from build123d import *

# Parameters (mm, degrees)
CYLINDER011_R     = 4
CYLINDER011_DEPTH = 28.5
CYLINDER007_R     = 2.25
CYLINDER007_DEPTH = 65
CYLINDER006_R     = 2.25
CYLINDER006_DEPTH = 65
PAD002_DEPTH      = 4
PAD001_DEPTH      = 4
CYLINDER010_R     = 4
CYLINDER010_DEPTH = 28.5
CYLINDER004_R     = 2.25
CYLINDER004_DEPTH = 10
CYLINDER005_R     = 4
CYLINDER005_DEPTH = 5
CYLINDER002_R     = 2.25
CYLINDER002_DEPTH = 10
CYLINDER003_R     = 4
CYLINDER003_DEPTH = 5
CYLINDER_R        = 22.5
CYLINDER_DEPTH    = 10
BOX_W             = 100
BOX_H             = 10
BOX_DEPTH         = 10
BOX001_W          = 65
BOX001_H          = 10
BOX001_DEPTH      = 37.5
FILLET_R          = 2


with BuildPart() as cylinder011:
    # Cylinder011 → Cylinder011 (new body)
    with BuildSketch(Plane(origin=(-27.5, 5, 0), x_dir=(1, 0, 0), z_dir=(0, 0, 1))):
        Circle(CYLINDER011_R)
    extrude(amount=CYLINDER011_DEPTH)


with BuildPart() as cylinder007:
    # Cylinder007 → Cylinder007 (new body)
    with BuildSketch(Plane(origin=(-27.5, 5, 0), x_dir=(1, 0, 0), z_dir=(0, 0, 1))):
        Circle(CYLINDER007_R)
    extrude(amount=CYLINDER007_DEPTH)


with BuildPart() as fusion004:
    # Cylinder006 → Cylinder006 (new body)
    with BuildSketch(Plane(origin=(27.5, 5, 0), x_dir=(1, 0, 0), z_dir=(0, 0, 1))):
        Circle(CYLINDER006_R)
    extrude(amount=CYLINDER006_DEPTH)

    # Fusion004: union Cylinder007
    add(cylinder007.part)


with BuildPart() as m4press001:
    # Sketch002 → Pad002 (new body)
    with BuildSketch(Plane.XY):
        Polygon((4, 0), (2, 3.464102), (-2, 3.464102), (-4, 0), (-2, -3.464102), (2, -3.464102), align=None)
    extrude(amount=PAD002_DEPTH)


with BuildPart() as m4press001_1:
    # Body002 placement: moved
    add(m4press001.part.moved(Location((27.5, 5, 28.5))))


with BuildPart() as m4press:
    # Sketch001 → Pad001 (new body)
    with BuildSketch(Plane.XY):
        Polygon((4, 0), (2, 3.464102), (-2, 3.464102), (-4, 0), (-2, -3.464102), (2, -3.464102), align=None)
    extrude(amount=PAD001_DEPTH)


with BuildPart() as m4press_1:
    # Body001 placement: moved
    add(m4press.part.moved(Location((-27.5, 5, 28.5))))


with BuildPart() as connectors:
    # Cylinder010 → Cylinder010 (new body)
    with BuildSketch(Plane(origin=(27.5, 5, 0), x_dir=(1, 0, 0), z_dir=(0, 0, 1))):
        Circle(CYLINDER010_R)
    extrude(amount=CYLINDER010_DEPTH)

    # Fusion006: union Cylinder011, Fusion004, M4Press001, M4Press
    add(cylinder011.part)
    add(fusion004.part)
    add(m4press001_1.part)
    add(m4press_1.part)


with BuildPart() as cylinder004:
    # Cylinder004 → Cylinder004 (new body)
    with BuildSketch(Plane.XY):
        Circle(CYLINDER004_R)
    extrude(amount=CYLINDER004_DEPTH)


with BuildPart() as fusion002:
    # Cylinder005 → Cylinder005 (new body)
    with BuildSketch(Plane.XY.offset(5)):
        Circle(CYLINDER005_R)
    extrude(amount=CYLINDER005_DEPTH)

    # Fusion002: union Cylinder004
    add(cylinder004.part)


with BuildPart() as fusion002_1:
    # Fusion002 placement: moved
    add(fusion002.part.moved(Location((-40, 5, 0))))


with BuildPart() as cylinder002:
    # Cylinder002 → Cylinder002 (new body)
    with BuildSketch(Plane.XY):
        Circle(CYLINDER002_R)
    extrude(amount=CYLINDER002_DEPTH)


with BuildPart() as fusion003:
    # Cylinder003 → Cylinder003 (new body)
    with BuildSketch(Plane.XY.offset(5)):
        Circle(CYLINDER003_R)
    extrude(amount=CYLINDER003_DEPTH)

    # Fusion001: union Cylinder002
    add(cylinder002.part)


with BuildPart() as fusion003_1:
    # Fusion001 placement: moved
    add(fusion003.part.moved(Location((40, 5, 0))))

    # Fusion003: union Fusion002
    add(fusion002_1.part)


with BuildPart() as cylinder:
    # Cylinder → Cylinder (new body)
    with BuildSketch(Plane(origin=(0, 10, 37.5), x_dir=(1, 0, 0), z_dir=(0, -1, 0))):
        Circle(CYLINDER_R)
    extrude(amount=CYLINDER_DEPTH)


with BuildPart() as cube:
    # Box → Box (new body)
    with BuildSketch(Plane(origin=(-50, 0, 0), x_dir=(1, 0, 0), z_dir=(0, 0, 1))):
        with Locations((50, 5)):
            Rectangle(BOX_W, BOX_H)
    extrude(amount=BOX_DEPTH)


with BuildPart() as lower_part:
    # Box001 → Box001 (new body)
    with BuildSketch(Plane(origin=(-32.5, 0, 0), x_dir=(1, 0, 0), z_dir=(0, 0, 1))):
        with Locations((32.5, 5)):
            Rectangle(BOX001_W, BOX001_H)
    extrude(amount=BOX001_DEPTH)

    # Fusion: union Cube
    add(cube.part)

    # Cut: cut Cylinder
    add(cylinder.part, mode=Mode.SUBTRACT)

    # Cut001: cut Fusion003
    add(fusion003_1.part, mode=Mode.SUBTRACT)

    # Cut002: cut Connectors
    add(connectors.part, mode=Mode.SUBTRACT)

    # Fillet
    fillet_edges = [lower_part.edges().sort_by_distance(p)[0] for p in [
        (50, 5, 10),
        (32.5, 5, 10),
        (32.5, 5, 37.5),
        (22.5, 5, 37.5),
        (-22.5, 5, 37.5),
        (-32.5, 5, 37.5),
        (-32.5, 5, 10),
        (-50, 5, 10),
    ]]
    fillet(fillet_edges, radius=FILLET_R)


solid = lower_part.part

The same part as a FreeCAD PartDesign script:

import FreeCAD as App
import Part
import Sketcher
from FreeCAD import Vector
Q = App.Units.Quantity


def edges_at(feature, points):
    """Names of the edges that pass closest to the given points."""
    edges = feature.Shape.Edges
    near = lambda p: min(range(len(edges)), key=lambda i: edges[i].distToShape(Part.Vertex(*p))[0])
    return sorted({f"Edge{near(p) + 1}" for p in points})

doc = App.newDocument("Part")
params = doc.addObject("Spreadsheet::Sheet", "Params")
for row, (alias, value) in enumerate([
    ("sketch1_diameter", "8 mm"),
    ("pad1_length", "28.5 mm"),
    ("sketch2_diameter", "4.5 mm"),
    ("pad2_length", "65 mm"),
    ("sketch3_diameter", "4.5 mm"),
    ("pad3_length", "65 mm"),
    ("sketch4_width", "4 mm"),
    ("sketch4_length", "4 mm"),
    ("pad4_length", "4 mm"),
    ("sketch5_width", "4 mm"),
    ("sketch5_length", "4 mm"),
    ("pad5_length", "4 mm"),
    ("sketch6_diameter", "8 mm"),
    ("pad6_length", "28.5 mm"),
    ("sketch7_diameter", "4.5 mm"),
    ("pad7_length", "10 mm"),
    ("sketch8_diameter", "8 mm"),
    ("pad8_length", "5 mm"),
    ("sketch9_diameter", "4.5 mm"),
    ("pad9_length", "10 mm"),
    ("sketch10_diameter", "8 mm"),
    ("pad10_length", "5 mm"),
    ("sketch11_diameter", "45 mm"),
    ("pad11_length", "10 mm"),
    ("sketch12_width", "100 mm"),
    ("sketch12_height", "10 mm"),
    ("pad12_length", "10 mm"),
    ("sketch13_width", "65 mm"),
    ("sketch13_height", "10 mm"),
    ("pad13_length", "37.5 mm"),
    ("fillet_radius", "2 mm"),
], start=1):
    params.set(f"A{row}", alias)
    params.set(f"B{row}", "=" + value)
    params.setAlias(f"B{row}", alias)

body = doc.addObject("PartDesign::Body", "Body")

sketch1 = body.newObject("Sketcher::SketchObject", "Sketch")
sketch1.AttachmentSupport = (doc.getObject("XY_Plane"), [""])
sketch1.MapMode = "FlatFace"
sketch1.addGeometry(Part.Circle(Vector(-27.5, 5, 0), Vector(0, 0, 1), 4), False)
sketch1.addConstraint([
    Sketcher.Constraint("Diameter", 0, 8.0),
    Sketcher.Constraint("DistanceY", -1, 1, 0, 3, 5.0),
    Sketcher.Constraint("DistanceX", 0, 3, -1, 1, 27.5),
])
sketch1.setExpression("Constraints[0]", "Params.sketch1_diameter")
pad1 = body.newObject("PartDesign::Pad", "Pad")
pad1.Profile = sketch1
pad1.setExpression("Length", "Params.pad1_length")
body2 = doc.addObject("PartDesign::Body", "Body001")

sketch2 = body2.newObject("Sketcher::SketchObject", "Sketch001")
sketch2.AttachmentSupport = (doc.getObject("XY_Plane001"), [""])
sketch2.MapMode = "FlatFace"
sketch2.addGeometry(Part.Circle(Vector(-27.5, 5, 0), Vector(0, 0, 1), 2.2), False)
sketch2.addConstraint([
    Sketcher.Constraint("Diameter", 0, 4.5),
    Sketcher.Constraint("DistanceY", -1, 1, 0, 3, 5.0),
    Sketcher.Constraint("DistanceX", 0, 3, -1, 1, 27.5),
])
sketch2.setExpression("Constraints[0]", "Params.sketch2_diameter")
pad2 = body2.newObject("PartDesign::Pad", "Pad001")
pad2.Profile = sketch2
pad2.setExpression("Length", "Params.pad2_length")
body3 = doc.addObject("PartDesign::Body", "Body002")
body3.AllowCompound = True

sketch3 = body3.newObject("Sketcher::SketchObject", "Sketch002")
sketch3.AttachmentSupport = (doc.getObject("XY_Plane002"), [""])
sketch3.MapMode = "FlatFace"
sketch3.addGeometry(Part.Circle(Vector(27.5, 5, 0), Vector(0, 0, 1), 2.2), False)
sketch3.addConstraint([
    Sketcher.Constraint("Diameter", 0, 4.5),
    Sketcher.Constraint("DistanceY", -1, 1, 0, 3, 5.0),
    Sketcher.Constraint("DistanceX", -1, 1, 0, 3, 27.5),
])
sketch3.setExpression("Constraints[0]", "Params.sketch3_diameter")
pad3 = body3.newObject("PartDesign::Pad", "Pad002")
pad3.Profile = sketch3
pad3.setExpression("Length", "Params.pad3_length")
doc.recompute()

boolean = body3.newObject("PartDesign::Boolean", "Boolean")
boolean.Type = "Fuse"
boolean.addObjects([body2])
body4 = doc.addObject("PartDesign::Body", "Body003")

sketch4 = body4.newObject("Sketcher::SketchObject", "Sketch003")
sketch4.AttachmentSupport = (doc.getObject("XY_Plane003"), [""])
sketch4.MapMode = "FlatFace"
sketch4.addGeometry([
    Part.LineSegment(Vector(4, 0, 0), Vector(2, 3.5, 0)),
    Part.LineSegment(Vector(2, 3.5, 0), Vector(-2, 3.5, 0)),
    Part.LineSegment(Vector(-2, 3.5, 0), Vector(-4, 0, 0)),
    Part.LineSegment(Vector(-4, 0, 0), Vector(-2, -3.5, 0)),
    Part.LineSegment(Vector(-2, -3.5, 0), Vector(2, -3.5, 0)),
    Part.LineSegment(Vector(2, -3.5, 0), Vector(4, 0, 0)),
], False)
sketch4.addConstraint([
    Sketcher.Constraint("Coincident", 0, 2, 1, 1),
    Sketcher.Constraint("Coincident", 1, 2, 2, 1),
    Sketcher.Constraint("Coincident", 2, 2, 3, 1),
    Sketcher.Constraint("Coincident", 3, 2, 4, 1),
    Sketcher.Constraint("Coincident", 4, 2, 5, 1),
    Sketcher.Constraint("Coincident", 5, 2, 0, 1),
    Sketcher.Constraint("Horizontal", 1),
    Sketcher.Constraint("Horizontal", 4),
    Sketcher.Constraint("Symmetric", 0, 2, 3, 2, -1, 1),
    Sketcher.Constraint("Symmetric", 2, 2, 5, 2, -1, 1),
    Sketcher.Constraint("PointOnObject", 2, 2, -1),
    Sketcher.Constraint("Parallel", 2, 5),
    Sketcher.Constraint("Vertical", 1, 2, 3, 2),
    Sketcher.Constraint("DistanceX", 1, 2, 1, 1, 4.0),
    Sketcher.Constraint("Angle", 0, Q("119.999997 deg")),
    Sketcher.Constraint("Distance", 0, 4.0),
])
sketch4.setExpression("Constraints[13]", "Params.sketch4_width")
sketch4.setExpression("Constraints[15]", "Params.sketch4_length")
pad4 = body4.newObject("PartDesign::Pad", "Pad003")
pad4.Profile = sketch4
pad4.setExpression("Length", "Params.pad4_length")
body5 = doc.addObject("PartDesign::Body", "Body004")
doc.recompute()

body4.Placement = App.Placement(Vector(27.5, 5, 28.5), App.Rotation(Vector(0, 0, 1), 0))
boolean2 = body5.newObject("PartDesign::Boolean", "Boolean001")
boolean2.Type = "Fuse"
boolean2.addObjects([body4])
body6 = doc.addObject("PartDesign::Body", "Body005")

sketch5 = body6.newObject("Sketcher::SketchObject", "Sketch004")
sketch5.AttachmentSupport = (doc.getObject("XY_Plane005"), [""])
sketch5.MapMode = "FlatFace"
sketch5.addGeometry([
    Part.LineSegment(Vector(4, 0, 0), Vector(2, 3.5, 0)),
    Part.LineSegment(Vector(2, 3.5, 0), Vector(-2, 3.5, 0)),
    Part.LineSegment(Vector(-2, 3.5, 0), Vector(-4, 0, 0)),
    Part.LineSegment(Vector(-4, 0, 0), Vector(-2, -3.5, 0)),
    Part.LineSegment(Vector(-2, -3.5, 0), Vector(2, -3.5, 0)),
    Part.LineSegment(Vector(2, -3.5, 0), Vector(4, 0, 0)),
], False)
sketch5.addConstraint([
    Sketcher.Constraint("Coincident", 0, 2, 1, 1),
    Sketcher.Constraint("Coincident", 1, 2, 2, 1),
    Sketcher.Constraint("Coincident", 2, 2, 3, 1),
    Sketcher.Constraint("Coincident", 3, 2, 4, 1),
    Sketcher.Constraint("Coincident", 4, 2, 5, 1),
    Sketcher.Constraint("Coincident", 5, 2, 0, 1),
    Sketcher.Constraint("Horizontal", 1),
    Sketcher.Constraint("Horizontal", 4),
    Sketcher.Constraint("Symmetric", 0, 2, 3, 2, -1, 1),
    Sketcher.Constraint("Symmetric", 2, 2, 5, 2, -1, 1),
    Sketcher.Constraint("PointOnObject", 2, 2, -1),
    Sketcher.Constraint("Parallel", 2, 5),
    Sketcher.Constraint("Vertical", 1, 2, 3, 2),
    Sketcher.Constraint("DistanceX", 1, 2, 1, 1, 4.0),
    Sketcher.Constraint("Angle", 0, Q("119.999997 deg")),
    Sketcher.Constraint("Distance", 0, 4.0),
])
sketch5.setExpression("Constraints[13]", "Params.sketch5_width")
sketch5.setExpression("Constraints[15]", "Params.sketch5_length")
pad5 = body6.newObject("PartDesign::Pad", "Pad004")
pad5.Profile = sketch5
pad5.setExpression("Length", "Params.pad5_length")
body7 = doc.addObject("PartDesign::Body", "Body006")
doc.recompute()

body6.Placement = App.Placement(Vector(-27.5, 5, 28.5), App.Rotation(Vector(0, 0, 1), 0))
boolean3 = body7.newObject("PartDesign::Boolean", "Boolean002")
boolean3.Type = "Fuse"
boolean3.addObjects([body6])
body8 = doc.addObject("PartDesign::Body", "Body007")
body8.AllowCompound = True

sketch6 = body8.newObject("Sketcher::SketchObject", "Sketch005")
sketch6.AttachmentSupport = (doc.getObject("XY_Plane007"), [""])
sketch6.MapMode = "FlatFace"
sketch6.addGeometry(Part.Circle(Vector(27.5, 5, 0), Vector(0, 0, 1), 4), False)
sketch6.addConstraint([
    Sketcher.Constraint("Diameter", 0, 8.0),
    Sketcher.Constraint("DistanceY", -1, 1, 0, 3, 5.0),
    Sketcher.Constraint("DistanceX", -1, 1, 0, 3, 27.5),
])
sketch6.setExpression("Constraints[0]", "Params.sketch6_diameter")
pad6 = body8.newObject("PartDesign::Pad", "Pad005")
pad6.Profile = sketch6
pad6.setExpression("Length", "Params.pad6_length")
doc.recompute()

boolean4 = body8.newObject("PartDesign::Boolean", "Boolean003")
boolean4.Type = "Fuse"
boolean4.addObjects([body])
doc.recompute()

boolean5 = body8.newObject("PartDesign::Boolean", "Boolean004")
boolean5.Type = "Fuse"
boolean5.addObjects([body3])
doc.recompute()

boolean6 = body8.newObject("PartDesign::Boolean", "Boolean005")
boolean6.Type = "Fuse"
boolean6.addObjects([body5])
doc.recompute()

boolean7 = body8.newObject("PartDesign::Boolean", "Boolean006")
boolean7.Type = "Fuse"
boolean7.addObjects([body7])
body9 = doc.addObject("PartDesign::Body", "Body008")

sketch7 = body9.newObject("Sketcher::SketchObject", "Sketch006")
sketch7.AttachmentSupport = (doc.getObject("XY_Plane008"), [""])
sketch7.MapMode = "FlatFace"
sketch7.addGeometry(Part.Circle(Vector(0, 0, 0), Vector(0, 0, 1), 2.2), False)
sketch7.addConstraint([
    Sketcher.Constraint("Coincident", 0, 3, -1, 1),
    Sketcher.Constraint("Diameter", 0, 4.5),
])
sketch7.setExpression("Constraints[1]", "Params.sketch7_diameter")
pad7 = body9.newObject("PartDesign::Pad", "Pad006")
pad7.Profile = sketch7
pad7.setExpression("Length", "Params.pad7_length")
body10 = doc.addObject("PartDesign::Body", "Body009")

sketch8 = body10.newObject("Sketcher::SketchObject", "Sketch007")
sketch8.AttachmentSupport = (doc.getObject("XY_Plane009"), [""])
sketch8.MapMode = "FlatFace"
sketch8.AttachmentOffset = App.Placement(Vector(0, 0, 5), App.Rotation())
sketch8.addGeometry(Part.Circle(Vector(0, 0, 0), Vector(0, 0, 1), 4), False)
sketch8.addConstraint([
    Sketcher.Constraint("Coincident", 0, 3, -1, 1),
    Sketcher.Constraint("Diameter", 0, 8.0),
])
sketch8.setExpression("Constraints[1]", "Params.sketch8_diameter")
pad8 = body10.newObject("PartDesign::Pad", "Pad007")
pad8.Profile = sketch8
pad8.setExpression("Length", "Params.pad8_length")
doc.recompute()

boolean8 = body10.newObject("PartDesign::Boolean", "Boolean007")
boolean8.Type = "Fuse"
boolean8.addObjects([body9])
body11 = doc.addObject("PartDesign::Body", "Body010")
doc.recompute()

body10.Placement = App.Placement(Vector(-40, 5, 0), App.Rotation(Vector(0, 0, 1), 0))
boolean9 = body11.newObject("PartDesign::Boolean", "Boolean008")
boolean9.Type = "Fuse"
boolean9.addObjects([body10])
body12 = doc.addObject("PartDesign::Body", "Body011")

sketch9 = body12.newObject("Sketcher::SketchObject", "Sketch008")
sketch9.AttachmentSupport = (doc.getObject("XY_Plane011"), [""])
sketch9.MapMode = "FlatFace"
sketch9.addGeometry(Part.Circle(Vector(0, 0, 0), Vector(0, 0, 1), 2.2), False)
sketch9.addConstraint([
    Sketcher.Constraint("Coincident", 0, 3, -1, 1),
    Sketcher.Constraint("Diameter", 0, 4.5),
])
sketch9.setExpression("Constraints[1]", "Params.sketch9_diameter")
pad9 = body12.newObject("PartDesign::Pad", "Pad008")
pad9.Profile = sketch9
pad9.setExpression("Length", "Params.pad9_length")
body13 = doc.addObject("PartDesign::Body", "Body012")

sketch10 = body13.newObject("Sketcher::SketchObject", "Sketch009")
sketch10.AttachmentSupport = (doc.getObject("XY_Plane012"), [""])
sketch10.MapMode = "FlatFace"
sketch10.AttachmentOffset = App.Placement(Vector(0, 0, 5), App.Rotation())
sketch10.addGeometry(Part.Circle(Vector(0, 0, 0), Vector(0, 0, 1), 4), False)
sketch10.addConstraint([
    Sketcher.Constraint("Coincident", 0, 3, -1, 1),
    Sketcher.Constraint("Diameter", 0, 8.0),
])
sketch10.setExpression("Constraints[1]", "Params.sketch10_diameter")
pad10 = body13.newObject("PartDesign::Pad", "Pad009")
pad10.Profile = sketch10
pad10.setExpression("Length", "Params.pad10_length")
doc.recompute()

boolean10 = body13.newObject("PartDesign::Boolean", "Boolean009")
boolean10.Type = "Fuse"
boolean10.addObjects([body12])
body14 = doc.addObject("PartDesign::Body", "Body013")
body14.AllowCompound = True
doc.recompute()

body13.Placement = App.Placement(Vector(40, 5, 0), App.Rotation(Vector(0, 0, 1), 0))
boolean11 = body14.newObject("PartDesign::Boolean", "Boolean010")
boolean11.Type = "Fuse"
boolean11.addObjects([body13])
doc.recompute()

boolean12 = body14.newObject("PartDesign::Boolean", "Boolean011")
boolean12.Type = "Fuse"
boolean12.addObjects([body11])
body15 = doc.addObject("PartDesign::Body", "Body014")

sketch11 = body15.newObject("Sketcher::SketchObject", "Sketch010")
sketch11.AttachmentSupport = (doc.getObject("XZ_Plane014"), [""])
sketch11.MapMode = "FlatFace"
sketch11.AttachmentOffset = App.Placement(Vector(0, 0, -10), App.Rotation())
sketch11.addGeometry(Part.Circle(Vector(0, 38, 0), Vector(0, 0, 1), 22), False)
sketch11.addConstraint([
    Sketcher.Constraint("PointOnObject", 0, 3, -2),
    Sketcher.Constraint("Diameter", 0, 45.0),
    Sketcher.Constraint("DistanceY", -1, 1, 0, 3, 37.5),
])
sketch11.setExpression("Constraints[1]", "Params.sketch11_diameter")
pad11 = body15.newObject("PartDesign::Pad", "Pad010")
pad11.Profile = sketch11
pad11.setExpression("Length", "Params.pad11_length")
body16 = doc.addObject("PartDesign::Body", "Body015")

sketch12 = body16.newObject("Sketcher::SketchObject", "Sketch011")
sketch12.AttachmentSupport = (doc.getObject("XY_Plane015"), [""])
sketch12.MapMode = "FlatFace"
sketch12.addGeometry([
    Part.LineSegment(Vector(-50, 10, 0), Vector(-50, 0, 0)),
    Part.LineSegment(Vector(-50, 0, 0), Vector(50, 0, 0)),
    Part.LineSegment(Vector(50, 0, 0), Vector(50, 10, 0)),
    Part.LineSegment(Vector(50, 10, 0), Vector(-50, 10, 0)),
], False)
sketch12.addConstraint([
    Sketcher.Constraint("Coincident", 0, 2, 1, 1),
    Sketcher.Constraint("Coincident", 1, 2, 2, 1),
    Sketcher.Constraint("Coincident", 2, 2, 3, 1),
    Sketcher.Constraint("Coincident", 3, 2, 0, 1),
    Sketcher.Constraint("Vertical", 0),
    Sketcher.Constraint("Horizontal", 1),
    Sketcher.Constraint("Vertical", 2),
    Sketcher.Constraint("Horizontal", 3),
    Sketcher.Constraint("Symmetric", 0, 2, 1, 2, -1, 1),
    Sketcher.Constraint("DistanceX", 1, 1, 1, 2, 100.0),
    Sketcher.Constraint("DistanceY", 0, 2, 0, 1, 10.0),
])
sketch12.setExpression("Constraints[9]", "Params.sketch12_width")
sketch12.setExpression("Constraints[10]", "Params.sketch12_height")
pad12 = body16.newObject("PartDesign::Pad", "Pad011")
pad12.Profile = sketch12
pad12.setExpression("Length", "Params.pad12_length")
body17 = doc.addObject("PartDesign::Body", "Body016")

sketch13 = body17.newObject("Sketcher::SketchObject", "Sketch012")
sketch13.AttachmentSupport = (doc.getObject("XY_Plane016"), [""])
sketch13.MapMode = "FlatFace"
sketch13.addGeometry([
    Part.LineSegment(Vector(-32, 10, 0), Vector(-32, 0, 0)),
    Part.LineSegment(Vector(-32, 0, 0), Vector(32, 0, 0)),
    Part.LineSegment(Vector(32, 0, 0), Vector(32, 10, 0)),
    Part.LineSegment(Vector(32, 10, 0), Vector(-32, 10, 0)),
], False)
sketch13.addConstraint([
    Sketcher.Constraint("Coincident", 0, 2, 1, 1),
    Sketcher.Constraint("Coincident", 1, 2, 2, 1),
    Sketcher.Constraint("Coincident", 2, 2, 3, 1),
    Sketcher.Constraint("Coincident", 3, 2, 0, 1),
    Sketcher.Constraint("Vertical", 0),
    Sketcher.Constraint("Horizontal", 1),
    Sketcher.Constraint("Vertical", 2),
    Sketcher.Constraint("Horizontal", 3),
    Sketcher.Constraint("Symmetric", 0, 2, 1, 2, -1, 1),
    Sketcher.Constraint("DistanceX", 1, 1, 1, 2, 65.0),
    Sketcher.Constraint("DistanceY", 0, 2, 0, 1, 10.0),
])
sketch13.setExpression("Constraints[9]", "Params.sketch13_width")
sketch13.setExpression("Constraints[10]", "Params.sketch13_height")
pad13 = body17.newObject("PartDesign::Pad", "Pad012")
pad13.Profile = sketch13
pad13.setExpression("Length", "Params.pad13_length")
doc.recompute()

boolean13 = body17.newObject("PartDesign::Boolean", "Boolean012")
boolean13.Type = "Fuse"
boolean13.addObjects([body16])
doc.recompute()

boolean14 = body17.newObject("PartDesign::Boolean", "Boolean013")
boolean14.Type = "Cut"
boolean14.addObjects([body15])
doc.recompute()

boolean15 = body17.newObject("PartDesign::Boolean", "Boolean014")
boolean15.Type = "Cut"
boolean15.addObjects([body14])
doc.recompute()

boolean16 = body17.newObject("PartDesign::Boolean", "Boolean015")
boolean16.Type = "Cut"
boolean16.addObjects([body8])
doc.recompute()

fillet = body17.newObject("PartDesign::Fillet", "Fillet")
fillet.Base = (boolean16, edges_at(boolean16, [
    (50, 5, 10),
    (32.5, 5, 10),
    (32.5, 5, 37.5),
    (22.5, 5, 37.5),
    (-22.5, 5, 37.5),
    (-32.5, 5, 37.5),
    (-32.5, 5, 10),
    (-50, 5, 10),
]))
fillet.setExpression("Radius", "Params.fillet_radius")

doc.recompute()
